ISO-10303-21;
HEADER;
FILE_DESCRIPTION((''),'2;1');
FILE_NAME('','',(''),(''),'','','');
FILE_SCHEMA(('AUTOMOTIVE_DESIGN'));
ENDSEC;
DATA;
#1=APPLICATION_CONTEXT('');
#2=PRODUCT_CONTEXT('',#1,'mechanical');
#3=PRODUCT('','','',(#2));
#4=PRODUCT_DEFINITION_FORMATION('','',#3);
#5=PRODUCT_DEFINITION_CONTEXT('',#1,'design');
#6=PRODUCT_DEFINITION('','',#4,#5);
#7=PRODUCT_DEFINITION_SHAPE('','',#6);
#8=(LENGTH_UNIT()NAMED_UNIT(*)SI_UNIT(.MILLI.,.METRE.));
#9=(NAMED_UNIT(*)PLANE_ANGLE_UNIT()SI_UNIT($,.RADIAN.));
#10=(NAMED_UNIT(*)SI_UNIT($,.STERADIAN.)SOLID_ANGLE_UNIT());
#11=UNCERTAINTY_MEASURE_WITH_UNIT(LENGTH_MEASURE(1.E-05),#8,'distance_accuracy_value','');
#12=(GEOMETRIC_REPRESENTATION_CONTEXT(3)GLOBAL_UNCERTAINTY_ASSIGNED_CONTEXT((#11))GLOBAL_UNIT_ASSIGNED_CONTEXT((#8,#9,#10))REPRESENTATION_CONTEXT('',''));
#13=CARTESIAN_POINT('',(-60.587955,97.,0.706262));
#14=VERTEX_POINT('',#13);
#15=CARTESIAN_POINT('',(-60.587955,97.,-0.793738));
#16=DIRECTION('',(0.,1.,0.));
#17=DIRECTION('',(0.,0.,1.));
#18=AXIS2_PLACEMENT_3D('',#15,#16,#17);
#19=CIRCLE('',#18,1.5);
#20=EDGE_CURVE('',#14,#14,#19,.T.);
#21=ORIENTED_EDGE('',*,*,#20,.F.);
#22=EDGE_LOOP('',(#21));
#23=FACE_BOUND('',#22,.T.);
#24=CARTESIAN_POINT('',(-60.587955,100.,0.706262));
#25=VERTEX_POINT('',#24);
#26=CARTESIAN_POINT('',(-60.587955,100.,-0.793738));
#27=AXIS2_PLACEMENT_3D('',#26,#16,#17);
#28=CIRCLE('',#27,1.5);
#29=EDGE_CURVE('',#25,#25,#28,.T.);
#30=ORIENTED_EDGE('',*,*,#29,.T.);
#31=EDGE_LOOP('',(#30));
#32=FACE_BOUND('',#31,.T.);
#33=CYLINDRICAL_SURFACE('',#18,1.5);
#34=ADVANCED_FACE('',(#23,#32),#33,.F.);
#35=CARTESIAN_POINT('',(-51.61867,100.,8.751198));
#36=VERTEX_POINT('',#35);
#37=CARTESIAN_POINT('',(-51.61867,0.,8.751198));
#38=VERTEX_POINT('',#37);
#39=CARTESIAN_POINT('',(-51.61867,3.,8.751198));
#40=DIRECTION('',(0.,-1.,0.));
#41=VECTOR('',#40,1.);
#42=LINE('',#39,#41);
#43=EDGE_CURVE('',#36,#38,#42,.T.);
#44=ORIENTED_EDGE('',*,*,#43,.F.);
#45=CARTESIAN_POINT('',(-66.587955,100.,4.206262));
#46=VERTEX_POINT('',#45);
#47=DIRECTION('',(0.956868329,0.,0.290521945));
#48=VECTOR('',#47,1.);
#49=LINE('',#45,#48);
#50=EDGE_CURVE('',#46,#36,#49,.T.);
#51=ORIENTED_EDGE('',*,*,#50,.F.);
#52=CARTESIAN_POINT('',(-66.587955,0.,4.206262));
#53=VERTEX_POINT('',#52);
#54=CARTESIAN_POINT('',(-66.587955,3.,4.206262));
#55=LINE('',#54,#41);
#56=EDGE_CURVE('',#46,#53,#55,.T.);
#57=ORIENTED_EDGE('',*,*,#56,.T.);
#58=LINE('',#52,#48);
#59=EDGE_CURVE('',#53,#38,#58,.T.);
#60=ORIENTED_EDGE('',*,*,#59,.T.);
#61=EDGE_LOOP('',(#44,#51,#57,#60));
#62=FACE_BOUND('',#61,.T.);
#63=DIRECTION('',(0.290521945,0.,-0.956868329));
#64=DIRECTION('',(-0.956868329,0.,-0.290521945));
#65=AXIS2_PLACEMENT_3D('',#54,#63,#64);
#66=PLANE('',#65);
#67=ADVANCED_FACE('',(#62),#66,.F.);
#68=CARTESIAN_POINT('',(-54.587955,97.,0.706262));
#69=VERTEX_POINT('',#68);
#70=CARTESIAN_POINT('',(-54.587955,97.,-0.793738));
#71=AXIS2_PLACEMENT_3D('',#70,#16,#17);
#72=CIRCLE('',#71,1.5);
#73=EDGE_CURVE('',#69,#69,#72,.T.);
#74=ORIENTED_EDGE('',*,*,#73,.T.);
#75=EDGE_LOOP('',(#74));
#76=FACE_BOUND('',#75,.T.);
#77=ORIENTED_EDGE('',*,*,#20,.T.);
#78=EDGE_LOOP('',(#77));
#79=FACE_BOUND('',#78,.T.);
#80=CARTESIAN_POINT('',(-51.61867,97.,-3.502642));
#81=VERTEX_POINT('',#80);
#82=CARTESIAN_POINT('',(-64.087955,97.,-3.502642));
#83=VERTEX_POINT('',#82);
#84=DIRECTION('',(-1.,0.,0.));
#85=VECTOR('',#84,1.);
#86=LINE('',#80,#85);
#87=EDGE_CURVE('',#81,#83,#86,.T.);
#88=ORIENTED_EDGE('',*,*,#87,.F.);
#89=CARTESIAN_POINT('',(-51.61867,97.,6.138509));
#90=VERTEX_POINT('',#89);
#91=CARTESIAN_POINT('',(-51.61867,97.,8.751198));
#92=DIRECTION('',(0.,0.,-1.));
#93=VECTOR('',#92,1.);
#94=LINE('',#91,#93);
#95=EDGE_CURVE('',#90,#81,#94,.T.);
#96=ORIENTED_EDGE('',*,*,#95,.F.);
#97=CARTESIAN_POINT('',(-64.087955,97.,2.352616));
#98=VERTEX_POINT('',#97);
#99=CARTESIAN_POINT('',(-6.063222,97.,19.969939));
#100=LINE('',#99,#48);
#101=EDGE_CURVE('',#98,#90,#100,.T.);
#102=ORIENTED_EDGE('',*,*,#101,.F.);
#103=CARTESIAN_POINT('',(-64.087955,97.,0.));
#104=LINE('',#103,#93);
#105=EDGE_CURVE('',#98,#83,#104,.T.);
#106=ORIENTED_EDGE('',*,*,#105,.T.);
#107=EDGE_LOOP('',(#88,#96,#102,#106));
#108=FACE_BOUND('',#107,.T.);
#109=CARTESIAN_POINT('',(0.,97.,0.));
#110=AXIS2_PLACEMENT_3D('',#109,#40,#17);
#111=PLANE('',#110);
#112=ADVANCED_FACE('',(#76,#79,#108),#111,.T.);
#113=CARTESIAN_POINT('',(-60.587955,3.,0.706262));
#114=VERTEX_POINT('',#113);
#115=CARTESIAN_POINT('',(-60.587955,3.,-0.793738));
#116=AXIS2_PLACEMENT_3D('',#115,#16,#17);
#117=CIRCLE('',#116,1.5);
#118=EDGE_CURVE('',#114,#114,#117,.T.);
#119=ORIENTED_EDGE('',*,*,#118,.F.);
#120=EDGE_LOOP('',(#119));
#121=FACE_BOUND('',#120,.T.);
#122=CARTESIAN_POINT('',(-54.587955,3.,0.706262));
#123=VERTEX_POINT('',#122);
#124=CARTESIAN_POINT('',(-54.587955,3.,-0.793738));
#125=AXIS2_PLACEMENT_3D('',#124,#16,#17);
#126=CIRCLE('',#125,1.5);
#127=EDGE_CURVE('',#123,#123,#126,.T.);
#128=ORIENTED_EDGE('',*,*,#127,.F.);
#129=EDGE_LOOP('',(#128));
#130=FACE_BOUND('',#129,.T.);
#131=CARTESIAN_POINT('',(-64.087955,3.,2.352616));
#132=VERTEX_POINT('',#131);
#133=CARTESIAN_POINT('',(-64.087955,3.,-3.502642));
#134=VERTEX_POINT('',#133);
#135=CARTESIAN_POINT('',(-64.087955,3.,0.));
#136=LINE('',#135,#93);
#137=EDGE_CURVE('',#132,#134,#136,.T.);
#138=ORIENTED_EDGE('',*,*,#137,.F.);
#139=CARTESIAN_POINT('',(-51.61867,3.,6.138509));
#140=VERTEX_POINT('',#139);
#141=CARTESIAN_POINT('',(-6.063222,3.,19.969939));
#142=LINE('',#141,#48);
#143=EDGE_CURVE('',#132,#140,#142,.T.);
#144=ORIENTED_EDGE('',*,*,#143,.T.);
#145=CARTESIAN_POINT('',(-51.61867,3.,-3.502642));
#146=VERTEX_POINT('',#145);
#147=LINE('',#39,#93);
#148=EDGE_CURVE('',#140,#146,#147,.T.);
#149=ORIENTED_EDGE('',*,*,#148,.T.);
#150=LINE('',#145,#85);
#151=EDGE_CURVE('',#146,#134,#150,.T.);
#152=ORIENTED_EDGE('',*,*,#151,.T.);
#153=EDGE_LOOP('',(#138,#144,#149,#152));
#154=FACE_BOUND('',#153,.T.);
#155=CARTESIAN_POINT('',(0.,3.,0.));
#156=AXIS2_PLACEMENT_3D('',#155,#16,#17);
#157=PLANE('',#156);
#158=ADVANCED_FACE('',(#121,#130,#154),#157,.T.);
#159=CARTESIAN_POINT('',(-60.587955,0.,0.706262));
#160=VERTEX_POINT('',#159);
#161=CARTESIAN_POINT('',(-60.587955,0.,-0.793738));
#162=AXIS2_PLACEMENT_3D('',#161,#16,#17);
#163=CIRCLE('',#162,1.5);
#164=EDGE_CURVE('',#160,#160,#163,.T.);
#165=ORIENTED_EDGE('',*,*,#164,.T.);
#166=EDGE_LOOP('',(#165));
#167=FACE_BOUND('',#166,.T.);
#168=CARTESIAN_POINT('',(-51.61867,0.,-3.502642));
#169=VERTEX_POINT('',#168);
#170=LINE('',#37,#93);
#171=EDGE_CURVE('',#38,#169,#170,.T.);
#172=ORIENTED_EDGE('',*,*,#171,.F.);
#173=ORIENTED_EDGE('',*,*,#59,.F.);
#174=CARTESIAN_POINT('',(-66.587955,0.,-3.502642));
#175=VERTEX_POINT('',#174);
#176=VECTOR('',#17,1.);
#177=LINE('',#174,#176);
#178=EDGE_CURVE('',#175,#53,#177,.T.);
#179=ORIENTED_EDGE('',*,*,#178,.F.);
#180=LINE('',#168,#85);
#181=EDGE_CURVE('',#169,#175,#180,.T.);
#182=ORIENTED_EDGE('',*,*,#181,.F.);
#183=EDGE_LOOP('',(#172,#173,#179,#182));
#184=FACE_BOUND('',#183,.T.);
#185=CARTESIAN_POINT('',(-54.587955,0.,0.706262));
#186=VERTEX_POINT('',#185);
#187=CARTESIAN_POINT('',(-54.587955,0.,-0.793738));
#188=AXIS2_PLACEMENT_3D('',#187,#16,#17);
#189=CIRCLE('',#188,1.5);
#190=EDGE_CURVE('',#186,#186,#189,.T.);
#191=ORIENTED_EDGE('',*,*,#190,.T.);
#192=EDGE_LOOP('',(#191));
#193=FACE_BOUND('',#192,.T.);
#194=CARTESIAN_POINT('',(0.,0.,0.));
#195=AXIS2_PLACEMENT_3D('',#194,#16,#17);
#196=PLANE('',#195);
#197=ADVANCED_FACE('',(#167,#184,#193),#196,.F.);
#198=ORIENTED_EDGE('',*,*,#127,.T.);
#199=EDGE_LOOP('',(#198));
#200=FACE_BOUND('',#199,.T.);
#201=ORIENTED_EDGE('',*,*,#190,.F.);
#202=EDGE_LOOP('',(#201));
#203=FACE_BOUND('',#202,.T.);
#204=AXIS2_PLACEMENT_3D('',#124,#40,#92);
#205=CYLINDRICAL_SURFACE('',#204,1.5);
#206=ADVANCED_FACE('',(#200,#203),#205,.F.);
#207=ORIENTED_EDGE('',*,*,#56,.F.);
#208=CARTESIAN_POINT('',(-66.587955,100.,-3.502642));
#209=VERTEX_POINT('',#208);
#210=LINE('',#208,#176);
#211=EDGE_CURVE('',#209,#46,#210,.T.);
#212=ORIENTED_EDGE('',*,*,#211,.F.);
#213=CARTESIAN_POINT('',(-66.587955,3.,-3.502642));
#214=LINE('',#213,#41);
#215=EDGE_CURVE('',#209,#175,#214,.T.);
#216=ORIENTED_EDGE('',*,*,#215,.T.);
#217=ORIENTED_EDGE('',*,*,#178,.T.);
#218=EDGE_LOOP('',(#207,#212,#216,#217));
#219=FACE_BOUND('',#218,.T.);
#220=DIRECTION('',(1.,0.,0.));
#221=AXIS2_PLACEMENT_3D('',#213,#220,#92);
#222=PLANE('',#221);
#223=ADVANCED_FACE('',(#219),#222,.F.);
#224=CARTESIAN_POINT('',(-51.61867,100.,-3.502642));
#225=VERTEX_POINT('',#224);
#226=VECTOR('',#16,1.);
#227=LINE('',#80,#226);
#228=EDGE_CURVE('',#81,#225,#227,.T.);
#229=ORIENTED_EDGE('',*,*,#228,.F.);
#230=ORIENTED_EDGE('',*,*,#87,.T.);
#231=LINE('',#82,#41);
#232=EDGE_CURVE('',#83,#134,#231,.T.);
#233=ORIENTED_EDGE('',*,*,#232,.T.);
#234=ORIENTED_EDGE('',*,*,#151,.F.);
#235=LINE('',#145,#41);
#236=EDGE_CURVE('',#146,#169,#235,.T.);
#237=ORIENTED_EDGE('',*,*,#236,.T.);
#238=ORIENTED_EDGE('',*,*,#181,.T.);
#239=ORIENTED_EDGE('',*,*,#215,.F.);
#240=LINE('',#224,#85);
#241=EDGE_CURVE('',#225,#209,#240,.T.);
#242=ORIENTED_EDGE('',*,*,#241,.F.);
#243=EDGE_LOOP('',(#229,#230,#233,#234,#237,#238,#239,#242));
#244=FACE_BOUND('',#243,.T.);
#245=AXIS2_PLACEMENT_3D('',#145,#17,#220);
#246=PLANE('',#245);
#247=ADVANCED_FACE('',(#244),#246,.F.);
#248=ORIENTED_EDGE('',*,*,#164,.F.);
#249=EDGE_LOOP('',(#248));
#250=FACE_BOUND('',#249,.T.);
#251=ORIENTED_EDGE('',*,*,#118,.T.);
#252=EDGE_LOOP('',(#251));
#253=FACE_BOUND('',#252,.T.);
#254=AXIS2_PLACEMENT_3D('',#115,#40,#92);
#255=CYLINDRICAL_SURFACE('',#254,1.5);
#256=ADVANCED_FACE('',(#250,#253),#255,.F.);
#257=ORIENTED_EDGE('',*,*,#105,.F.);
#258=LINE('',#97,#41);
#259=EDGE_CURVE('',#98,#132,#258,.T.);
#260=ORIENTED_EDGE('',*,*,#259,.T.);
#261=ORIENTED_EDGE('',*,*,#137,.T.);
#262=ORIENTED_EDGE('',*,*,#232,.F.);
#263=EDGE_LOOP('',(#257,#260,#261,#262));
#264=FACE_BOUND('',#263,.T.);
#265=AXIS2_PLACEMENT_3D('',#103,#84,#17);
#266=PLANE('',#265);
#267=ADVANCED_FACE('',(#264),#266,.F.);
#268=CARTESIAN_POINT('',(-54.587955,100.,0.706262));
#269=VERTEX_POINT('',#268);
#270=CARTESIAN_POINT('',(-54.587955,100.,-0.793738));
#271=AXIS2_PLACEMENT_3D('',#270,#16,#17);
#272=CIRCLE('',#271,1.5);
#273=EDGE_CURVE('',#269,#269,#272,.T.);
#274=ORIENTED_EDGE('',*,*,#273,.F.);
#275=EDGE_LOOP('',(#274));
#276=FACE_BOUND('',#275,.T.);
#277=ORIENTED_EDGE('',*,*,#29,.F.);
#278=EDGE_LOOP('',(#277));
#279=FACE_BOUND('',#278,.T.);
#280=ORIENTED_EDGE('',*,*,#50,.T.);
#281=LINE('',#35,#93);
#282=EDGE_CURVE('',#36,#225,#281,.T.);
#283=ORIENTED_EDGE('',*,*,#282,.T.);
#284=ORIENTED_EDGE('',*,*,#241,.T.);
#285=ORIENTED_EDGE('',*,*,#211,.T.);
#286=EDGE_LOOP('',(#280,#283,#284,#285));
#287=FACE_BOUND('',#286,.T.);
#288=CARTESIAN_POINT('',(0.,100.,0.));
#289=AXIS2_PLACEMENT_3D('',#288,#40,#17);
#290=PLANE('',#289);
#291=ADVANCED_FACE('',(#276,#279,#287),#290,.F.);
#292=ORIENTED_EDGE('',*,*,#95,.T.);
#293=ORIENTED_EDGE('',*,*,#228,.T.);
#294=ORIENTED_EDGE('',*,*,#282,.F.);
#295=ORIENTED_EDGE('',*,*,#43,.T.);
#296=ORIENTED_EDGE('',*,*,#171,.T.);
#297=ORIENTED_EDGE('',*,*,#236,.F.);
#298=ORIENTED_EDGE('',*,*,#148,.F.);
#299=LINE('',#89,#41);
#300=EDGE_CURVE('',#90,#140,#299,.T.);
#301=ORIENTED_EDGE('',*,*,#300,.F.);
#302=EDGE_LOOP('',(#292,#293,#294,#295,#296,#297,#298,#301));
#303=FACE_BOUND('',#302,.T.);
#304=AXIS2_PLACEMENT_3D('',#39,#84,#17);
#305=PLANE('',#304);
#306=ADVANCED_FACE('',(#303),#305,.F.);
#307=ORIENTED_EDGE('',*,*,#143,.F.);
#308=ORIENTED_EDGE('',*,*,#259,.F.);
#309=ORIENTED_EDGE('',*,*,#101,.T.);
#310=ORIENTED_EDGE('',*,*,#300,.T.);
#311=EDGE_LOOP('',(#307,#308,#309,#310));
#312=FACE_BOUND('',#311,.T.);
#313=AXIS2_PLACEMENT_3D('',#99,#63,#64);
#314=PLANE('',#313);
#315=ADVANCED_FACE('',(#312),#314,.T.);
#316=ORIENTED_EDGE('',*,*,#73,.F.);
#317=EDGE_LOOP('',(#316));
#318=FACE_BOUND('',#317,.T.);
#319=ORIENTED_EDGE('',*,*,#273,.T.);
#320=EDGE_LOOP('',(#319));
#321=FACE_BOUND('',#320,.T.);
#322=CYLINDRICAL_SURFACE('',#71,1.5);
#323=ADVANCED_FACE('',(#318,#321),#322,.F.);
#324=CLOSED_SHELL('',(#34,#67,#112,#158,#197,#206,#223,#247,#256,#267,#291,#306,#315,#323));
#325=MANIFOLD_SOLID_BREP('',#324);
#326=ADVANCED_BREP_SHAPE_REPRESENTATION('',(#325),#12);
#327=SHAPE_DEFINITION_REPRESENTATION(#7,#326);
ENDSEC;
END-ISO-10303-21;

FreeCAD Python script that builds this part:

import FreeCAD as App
import Part
import Sketcher

V = App.Vector


def add_polygon(sketch, points):
    """Adds a closed chain of lines whose ends are joined by coincident constraints."""
    first, n = sketch.GeometryCount, len(points)
    for a, b in zip(points, points[1:] + points[:1]):
        sketch.addGeometry(Part.LineSegment(App.Vector(*a, 0), App.Vector(*b, 0)), False)
    for i in range(n):
        sketch.addConstraint(Sketcher.Constraint("Coincident", first + i, 2, first + (i + 1) % n, 1))

doc = App.newDocument("Part")
body = doc.addObject("PartDesign::Body", "Body")

# Sketch on XZ plane
sketch1 = body.newObject("Sketcher::SketchObject", "Sketch")
sketch1.AttachmentSupport = (doc.getObject("XZ_Plane"), [""])
sketch1.MapMode = "FlatFace"
add_polygon(sketch1, [(-51.6, 8.8), (-51.6, -3.5), (-66.6, -3.5), (-66.6, 4.2)])  # lines 0-3
sketch1.addGeometry(Part.Circle(V(-60.6, -0.8, 0), V(0, 0, 1), 1.5), False)  # 4
sketch1.addGeometry(Part.Circle(V(-54.6, -0.8, 0), V(0, 0, 1), 1.5), False)  # 5
sketch1.addConstraint(Sketcher.Constraint("Vertical", 0))
sketch1.addConstraint(Sketcher.Constraint("Horizontal", 1))
sketch1.addConstraint(Sketcher.Constraint("Vertical", 2))
sketch1.addConstraint(Sketcher.Constraint("Equal", 4, 5))
sketch1.addConstraint(Sketcher.Constraint("Horizontal", 4, 3, 5, 3))
sketch1.addConstraint(Sketcher.Constraint("Diameter", 4, 3.0))
sketch1.addConstraint(Sketcher.Constraint("DistanceX", 4, 3, 5, 3, 6.0))
sketch1.addConstraint(Sketcher.Constraint("DistanceX", 1, 2, 4, 3, 6.0))
sketch1.addConstraint(Sketcher.Constraint("DistanceY", 4, 3, 2, 2, 5.0))
sketch1.addConstraint(Sketcher.Constraint("DistanceY", 0, 2, 0, 1, 12.25384))
sketch1.addConstraint(Sketcher.Constraint("DistanceY", -1, 1, 3, 2, 8.751198))
sketch1.addConstraint(Sketcher.Constraint("Distance", 3, 15.644038))
sketch1.addConstraint(Sketcher.Constraint("DistanceX", 1, 2, 1, 1, 14.969285))
sketch1.addConstraint(Sketcher.Constraint("DistanceX", 0, 2, -1, 1, 51.61867))
pad1 = body.newObject("PartDesign::Pad", "Pad")
pad1.Profile = sketch1
pad1.Length = 3
pad1.Reversed = True

# Sketch on XZ plane
sketch2 = body.newObject("Sketcher::SketchObject", "Sketch001")
sketch2.AttachmentSupport = (doc.getObject("XZ_Plane"), [""])
sketch2.MapMode = "FlatFace"
sketch2.AttachmentOffset = App.Placement(V(0, 0, -3), App.Rotation())
add_polygon(sketch2, [(-64.1, -3.5), (-66.6, -3.5), (-66.6, 4.2), (-63.4, 5.2), (-61.9, 5.6), (-51.6, 8.8), (-51.6, 6.1), (-61.9, 3), (-64.1, 2.4)])  # lines 0-8
sketch2.addConstraint(Sketcher.Constraint("Horizontal", 0))
sketch2.addConstraint(Sketcher.Constraint("Vertical", 1))
sketch2.addConstraint(Sketcher.Constraint("Vertical", 5))
sketch2.addConstraint(Sketcher.Constraint("Vertical", 8))
sketch2.addConstraint(Sketcher.Constraint("Parallel", 2, 3))
sketch2.addConstraint(Sketcher.Constraint("Parallel", 3, 4))
sketch2.addConstraint(Sketcher.Constraint("Parallel", 4, 6))
sketch2.addConstraint(Sketcher.Constraint("Parallel", 6, 7))
sketch2.addConstraint(Sketcher.Constraint("DistanceX", 0, 2, 0, 1, 2.5))
sketch2.addConstraint(Sketcher.Constraint("Distance", 4, 10.779099))
sketch2.addConstraint(Sketcher.Constraint("DistanceY", 5, 2, 5, 1, 2.61269))
sketch2.addConstraint(Sketcher.Constraint("DistanceY", -1, 1, 4, 2, 8.751198))
sketch2.addConstraint(Sketcher.Constraint("DistanceY", 1, 1, 1, 2, 7.708904))
sketch2.addConstraint(Sketcher.Constraint("DistanceY", 8, 2, 8, 1, 5.855258))
sketch2.addConstraint(Sketcher.Constraint("DistanceY", 0, 2, -1, 1, 3.502642))
sketch2.addConstraint(Sketcher.Constraint("DistanceX", 2, 2, -1, 1, 63.36118))
sketch2.addConstraint(Sketcher.Constraint("DistanceX", 3, 2, -1, 1, 61.932849))
sketch2.addConstraint(Sketcher.Constraint("DistanceX", 6, 2, -1, 1, 61.92071))
pad2 = body.newObject("PartDesign::Pad", "Pad001")
pad2.Profile = sketch2
pad2.Length = 94
pad2.Reversed = True
doc.recompute()

datumplane = body.newObject("PartDesign::Plane", "DatumPlane")
datumplane.AttachmentSupport = (doc.getObject("XZ_Plane"), [""])
datumplane.MapMode = "FlatFace"
datumplane.AttachmentOffset = App.Placement(V(0, 0, -50), App.Rotation())
mirrored = body.newObject("PartDesign::Mirrored", "Mirrored")
mirrored.Originals = [pad1]
mirrored.MirrorPlane = (datumplane, [""])
body.Tip = mirrored

doc.recompute()
